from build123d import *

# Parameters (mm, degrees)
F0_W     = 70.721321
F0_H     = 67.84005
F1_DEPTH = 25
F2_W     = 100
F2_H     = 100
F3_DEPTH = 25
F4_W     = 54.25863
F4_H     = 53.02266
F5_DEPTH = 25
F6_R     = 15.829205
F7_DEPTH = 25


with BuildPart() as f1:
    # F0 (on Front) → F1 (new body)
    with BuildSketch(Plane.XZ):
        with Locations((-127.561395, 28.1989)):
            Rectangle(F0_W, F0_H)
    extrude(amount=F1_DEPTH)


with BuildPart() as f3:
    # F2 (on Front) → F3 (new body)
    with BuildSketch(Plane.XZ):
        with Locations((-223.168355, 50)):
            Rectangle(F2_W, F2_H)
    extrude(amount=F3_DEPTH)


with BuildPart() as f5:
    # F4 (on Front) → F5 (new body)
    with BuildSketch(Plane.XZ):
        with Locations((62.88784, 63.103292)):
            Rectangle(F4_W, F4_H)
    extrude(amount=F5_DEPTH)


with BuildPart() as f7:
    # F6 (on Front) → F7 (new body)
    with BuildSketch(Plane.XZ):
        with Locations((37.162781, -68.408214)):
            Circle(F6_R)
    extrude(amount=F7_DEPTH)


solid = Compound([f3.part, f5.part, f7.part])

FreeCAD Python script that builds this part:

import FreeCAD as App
import Part
import Sketcher

V = App.Vector


def add_polygon(sketch, points):
    """Adds a closed chain of lines whose ends are joined by coincident constraints."""
    first, n = sketch.GeometryCount, len(points)
    for a, b in zip(points, points[1:] + points[:1]):
        sketch.addGeometry(Part.LineSegment(App.Vector(*a, 0), App.Vector(*b, 0)), False)
    for i in range(n):
        sketch.addConstraint(Sketcher.Constraint("Coincident", first + i, 2, first + (i + 1) % n, 1))

doc = App.newDocument("Part")
body = doc.addObject("PartDesign::Body", "Body")

# Sketch on XZ plane
sketch1 = body.newObject("Sketcher::SketchObject", "Sketch")
sketch1.AttachmentSupport = (doc.getObject("XZ_Plane"), [""])
sketch1.MapMode = "FlatFace"
add_polygon(sketch1, [(-162.922055, 62.118925), (-162.922055, -5.721125), (-92.200734, -5.721125), (-92.200734, 62.118925)])  # lines 0-3
sketch1.addConstraint(Sketcher.Constraint("Vertical", 0))
sketch1.addConstraint(Sketcher.Constraint("Horizontal", 1))
sketch1.addConstraint(Sketcher.Constraint("Vertical", 2))
sketch1.addConstraint(Sketcher.Constraint("Horizontal", 3))
sketch1.addConstraint(Sketcher.Constraint("DistanceX", 1, 1, 1, 2, 70.721321))
sketch1.addConstraint(Sketcher.Constraint("DistanceY", 0, 2, 0, 1, 67.84005))
sketch1.addConstraint(Sketcher.Constraint("DistanceX", 0, 2, -1, 1, 162.922055))
sketch1.addConstraint(Sketcher.Constraint("DistanceY", 0, 2, -1, 1, 5.721125))
pad1 = body.newObject("PartDesign::Pad", "Pad")
pad1.Profile = sketch1
pad1.Length = 25
body2 = doc.addObject("PartDesign::Body", "Body001")

# Sketch on XZ plane
sketch2 = body2.newObject("Sketcher::SketchObject", "Sketch001")
sketch2.AttachmentSupport = (doc.getObject("XZ_Plane001"), [""])
sketch2.MapMode = "FlatFace"
add_polygon(sketch2, [(-273.168355, 100), (-273.168355, 0), (-173.168355, 0), (-173.168355, 100)])  # lines 0-3
sketch2.addConstraint(Sketcher.Constraint("Vertical", 0))
sketch2.addConstraint(Sketcher.Constraint("Horizontal", 1))
sketch2.addConstraint(Sketcher.Constraint("Vertical", 2))
sketch2.addConstraint(Sketcher.Constraint("Horizontal", 3))
sketch2.addConstraint(Sketcher.Constraint("PointOnObject", 0, 2, -1))
sketch2.addConstraint(Sketcher.Constraint("Equal", 3, 0))
sketch2.addConstraint(Sketcher.Constraint("DistanceX", 1, 1, 1, 2, 100.0))
sketch2.addConstraint(Sketcher.Constraint("DistanceX", 0, 2, -1, 1, 273.168355))
pad2 = body2.newObject("PartDesign::Pad", "Pad001")
pad2.Profile = sketch2
pad2.Length = 25
body3 = doc.addObject("PartDesign::Body", "Body002")

# Sketch on XZ plane
sketch3 = body3.newObject("Sketcher::SketchObject", "Sketch002")
sketch3.AttachmentSupport = (doc.getObject("XZ_Plane002"), [""])
sketch3.MapMode = "FlatFace"
add_polygon(sketch3, [(35.758525, 89.614622), (35.758525, 36.591962), (90.017155, 36.591962), (90.017155, 89.614622)])  # lines 0-3
sketch3.addConstraint(Sketcher.Constraint("Vertical", 0))
sketch3.addConstraint(Sketcher.Constraint("Horizontal", 1))
sketch3.addConstraint(Sketcher.Constraint("Vertical", 2))
sketch3.addConstraint(Sketcher.Constraint("Horizontal", 3))
sketch3.addConstraint(Sketcher.Constraint("DistanceX", 1, 1, 1, 2, 54.25863))
sketch3.addConstraint(Sketcher.Constraint("DistanceY", 0, 2, 0, 1, 53.02266))
sketch3.addConstraint(Sketcher.Constraint("DistanceY", -1, 1, 2, 2, 89.614622))
sketch3.addConstraint(Sketcher.Constraint("DistanceX", -1, 1, 0, 2, 35.758525))
pad3 = body3.newObject("PartDesign::Pad", "Pad002")
pad3.Profile = sketch3
pad3.Length = 25
body4 = doc.addObject("PartDesign::Body", "Body003")

# Sketch on XZ plane
sketch4 = body4.newObject("Sketcher::SketchObject", "Sketch003")
sketch4.AttachmentSupport = (doc.getObject("XZ_Plane003"), [""])
sketch4.MapMode = "FlatFace"
sketch4.addGeometry(Part.Circle(V(37.162781, -68.408214, 0), V(0, 0, 1), 15.829205), False)
sketch4.addConstraint(Sketcher.Constraint("Diameter", 0, 31.65841))
sketch4.addConstraint(Sketcher.Constraint("DistanceX", -1, 1, 0, 3, 37.162781))
sketch4.addConstraint(Sketcher.Constraint("DistanceY", 0, 3, -1, 1, 68.408214))
pad4 = body4.newObject("PartDesign::Pad", "Pad003")
pad4.Profile = sketch4
pad4.Length = 25
body.Visibility = False

doc.recompute()
